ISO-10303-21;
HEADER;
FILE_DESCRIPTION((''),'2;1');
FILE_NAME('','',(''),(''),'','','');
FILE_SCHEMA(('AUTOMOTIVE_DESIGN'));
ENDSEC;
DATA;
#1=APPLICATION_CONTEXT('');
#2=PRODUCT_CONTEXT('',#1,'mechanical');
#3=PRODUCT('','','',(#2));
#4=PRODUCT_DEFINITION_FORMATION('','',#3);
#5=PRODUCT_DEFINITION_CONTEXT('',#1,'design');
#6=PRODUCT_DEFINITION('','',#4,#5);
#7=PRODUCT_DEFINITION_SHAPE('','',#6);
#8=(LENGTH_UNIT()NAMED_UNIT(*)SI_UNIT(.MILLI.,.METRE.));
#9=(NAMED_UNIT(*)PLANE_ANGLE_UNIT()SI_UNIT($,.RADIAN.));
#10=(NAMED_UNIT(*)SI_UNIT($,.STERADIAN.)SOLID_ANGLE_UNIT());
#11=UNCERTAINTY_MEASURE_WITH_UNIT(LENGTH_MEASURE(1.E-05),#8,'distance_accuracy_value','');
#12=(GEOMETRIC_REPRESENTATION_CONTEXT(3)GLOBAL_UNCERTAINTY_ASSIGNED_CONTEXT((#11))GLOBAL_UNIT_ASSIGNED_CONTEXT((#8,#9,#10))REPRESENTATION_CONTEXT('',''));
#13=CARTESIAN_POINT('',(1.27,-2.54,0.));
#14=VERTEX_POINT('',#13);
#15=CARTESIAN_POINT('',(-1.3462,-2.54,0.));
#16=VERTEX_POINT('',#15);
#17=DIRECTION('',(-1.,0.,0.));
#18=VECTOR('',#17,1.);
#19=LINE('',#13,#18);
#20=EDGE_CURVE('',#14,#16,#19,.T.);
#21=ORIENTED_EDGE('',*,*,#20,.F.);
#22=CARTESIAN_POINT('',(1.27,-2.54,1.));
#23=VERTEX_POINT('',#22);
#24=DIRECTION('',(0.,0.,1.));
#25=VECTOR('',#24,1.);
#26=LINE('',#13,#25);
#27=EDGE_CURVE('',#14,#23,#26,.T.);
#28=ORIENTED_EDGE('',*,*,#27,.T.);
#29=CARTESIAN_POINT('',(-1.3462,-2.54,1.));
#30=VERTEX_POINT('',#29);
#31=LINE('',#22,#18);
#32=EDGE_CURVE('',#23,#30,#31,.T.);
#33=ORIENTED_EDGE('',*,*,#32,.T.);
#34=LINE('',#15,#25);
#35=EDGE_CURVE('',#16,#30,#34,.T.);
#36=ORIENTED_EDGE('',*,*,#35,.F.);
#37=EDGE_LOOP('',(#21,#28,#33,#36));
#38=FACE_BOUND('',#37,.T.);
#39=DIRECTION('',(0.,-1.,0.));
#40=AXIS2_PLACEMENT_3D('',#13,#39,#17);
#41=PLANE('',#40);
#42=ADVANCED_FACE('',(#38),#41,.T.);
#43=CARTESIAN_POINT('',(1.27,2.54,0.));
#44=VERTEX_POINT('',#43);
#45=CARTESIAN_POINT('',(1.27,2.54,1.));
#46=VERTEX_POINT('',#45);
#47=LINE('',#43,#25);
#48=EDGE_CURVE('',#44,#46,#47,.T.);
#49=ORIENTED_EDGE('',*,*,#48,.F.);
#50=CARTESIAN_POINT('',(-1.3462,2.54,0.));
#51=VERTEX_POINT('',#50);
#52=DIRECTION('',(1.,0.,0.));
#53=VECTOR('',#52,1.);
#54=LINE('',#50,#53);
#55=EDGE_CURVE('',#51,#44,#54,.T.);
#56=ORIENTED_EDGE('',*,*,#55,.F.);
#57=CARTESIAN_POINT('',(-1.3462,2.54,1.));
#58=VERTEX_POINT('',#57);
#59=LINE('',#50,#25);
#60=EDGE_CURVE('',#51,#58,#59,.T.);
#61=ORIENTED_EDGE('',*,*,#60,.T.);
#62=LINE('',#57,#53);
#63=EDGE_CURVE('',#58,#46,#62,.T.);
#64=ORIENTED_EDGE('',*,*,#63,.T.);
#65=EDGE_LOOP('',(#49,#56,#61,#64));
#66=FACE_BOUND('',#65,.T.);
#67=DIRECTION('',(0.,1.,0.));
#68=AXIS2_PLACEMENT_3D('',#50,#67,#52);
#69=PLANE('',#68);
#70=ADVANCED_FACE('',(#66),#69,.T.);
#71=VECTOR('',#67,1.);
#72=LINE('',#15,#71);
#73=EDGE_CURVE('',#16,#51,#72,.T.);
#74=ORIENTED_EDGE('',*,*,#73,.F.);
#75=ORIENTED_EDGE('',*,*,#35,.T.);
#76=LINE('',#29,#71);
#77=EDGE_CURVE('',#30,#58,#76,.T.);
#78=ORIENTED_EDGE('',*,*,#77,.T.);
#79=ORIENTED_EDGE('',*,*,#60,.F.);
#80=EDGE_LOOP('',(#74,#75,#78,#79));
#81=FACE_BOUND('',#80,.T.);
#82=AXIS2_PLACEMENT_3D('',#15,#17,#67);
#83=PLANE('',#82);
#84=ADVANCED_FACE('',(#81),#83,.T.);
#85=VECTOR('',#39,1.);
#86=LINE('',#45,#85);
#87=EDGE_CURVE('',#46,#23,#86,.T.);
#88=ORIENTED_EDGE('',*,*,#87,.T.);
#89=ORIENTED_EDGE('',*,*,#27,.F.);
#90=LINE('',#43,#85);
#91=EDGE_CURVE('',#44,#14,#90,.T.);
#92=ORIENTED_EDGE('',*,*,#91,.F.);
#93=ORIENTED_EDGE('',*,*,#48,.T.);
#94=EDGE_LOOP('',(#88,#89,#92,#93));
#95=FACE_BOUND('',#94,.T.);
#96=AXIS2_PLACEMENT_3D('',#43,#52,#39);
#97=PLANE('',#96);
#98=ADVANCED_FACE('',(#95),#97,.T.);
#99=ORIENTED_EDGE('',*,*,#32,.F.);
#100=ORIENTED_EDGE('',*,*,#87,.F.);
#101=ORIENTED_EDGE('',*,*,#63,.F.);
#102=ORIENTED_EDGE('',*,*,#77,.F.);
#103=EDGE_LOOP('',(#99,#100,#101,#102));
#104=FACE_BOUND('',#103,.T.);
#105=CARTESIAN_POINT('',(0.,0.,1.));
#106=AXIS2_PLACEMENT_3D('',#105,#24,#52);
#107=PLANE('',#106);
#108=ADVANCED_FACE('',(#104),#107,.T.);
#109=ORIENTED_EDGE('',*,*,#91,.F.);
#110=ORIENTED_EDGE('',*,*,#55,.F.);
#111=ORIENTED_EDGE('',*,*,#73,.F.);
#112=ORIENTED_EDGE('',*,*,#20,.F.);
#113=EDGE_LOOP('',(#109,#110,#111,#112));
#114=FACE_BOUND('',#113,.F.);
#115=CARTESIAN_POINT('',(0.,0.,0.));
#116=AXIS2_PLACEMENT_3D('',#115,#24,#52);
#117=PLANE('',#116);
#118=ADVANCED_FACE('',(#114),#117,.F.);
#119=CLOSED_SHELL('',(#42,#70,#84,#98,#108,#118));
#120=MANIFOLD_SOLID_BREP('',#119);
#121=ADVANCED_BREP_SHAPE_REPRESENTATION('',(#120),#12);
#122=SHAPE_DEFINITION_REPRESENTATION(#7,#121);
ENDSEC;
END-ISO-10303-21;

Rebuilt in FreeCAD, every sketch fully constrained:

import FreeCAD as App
import Part
import Sketcher
from FreeCAD import Vector
Q = App.Units.Quantity


def add_polygon(sketch, points):
    """Adds a closed chain of lines whose ends are joined by coincident constraints."""
    first, n = sketch.GeometryCount, len(points)
    for a, b in zip(points, points[1:] + points[:1]):
        sketch.addGeometry(Part.LineSegment(App.Vector(*a, 0), App.Vector(*b, 0)), False)
    for i in range(n):
        sketch.addConstraint(Sketcher.Constraint("Coincident", first + i, 2, first + (i + 1) % n, 1))

doc = App.newDocument("Part")
body = doc.addObject("PartDesign::Body", "Body")

sketch1 = body.newObject("Sketcher::SketchObject", "Sketch")
sketch1.AttachmentSupport = (doc.getObject("XY_Plane"), [""])
sketch1.MapMode = "FlatFace"
add_polygon(sketch1, [(1.3, 2.5), (-1.3, 2.5), (-1.3, -2.5), (1.3, -2.5)])
sketch1.addConstraint([
    Sketcher.Constraint("Horizontal", 0),
    Sketcher.Constraint("Vertical", 1),
    Sketcher.Constraint("Horizontal", 2),
    Sketcher.Constraint("Vertical", 3),
    Sketcher.Constraint("DistanceY", 1, 2, 1, 1, Q("0.2 in")),
    Sketcher.Constraint("DistanceY", -1, 1, 0, 2, Q("0.1 in")),
    Sketcher.Constraint("DistanceX", 0, 2, 0, 1, Q("0.103 in")),
    Sketcher.Constraint("DistanceX", -1, 1, 2, 2, Q("0.05 in")),
])
pad1 = body.newObject("PartDesign::Pad", "Pad")
pad1.Profile = sketch1
pad1.Length = 1

doc.recompute()
